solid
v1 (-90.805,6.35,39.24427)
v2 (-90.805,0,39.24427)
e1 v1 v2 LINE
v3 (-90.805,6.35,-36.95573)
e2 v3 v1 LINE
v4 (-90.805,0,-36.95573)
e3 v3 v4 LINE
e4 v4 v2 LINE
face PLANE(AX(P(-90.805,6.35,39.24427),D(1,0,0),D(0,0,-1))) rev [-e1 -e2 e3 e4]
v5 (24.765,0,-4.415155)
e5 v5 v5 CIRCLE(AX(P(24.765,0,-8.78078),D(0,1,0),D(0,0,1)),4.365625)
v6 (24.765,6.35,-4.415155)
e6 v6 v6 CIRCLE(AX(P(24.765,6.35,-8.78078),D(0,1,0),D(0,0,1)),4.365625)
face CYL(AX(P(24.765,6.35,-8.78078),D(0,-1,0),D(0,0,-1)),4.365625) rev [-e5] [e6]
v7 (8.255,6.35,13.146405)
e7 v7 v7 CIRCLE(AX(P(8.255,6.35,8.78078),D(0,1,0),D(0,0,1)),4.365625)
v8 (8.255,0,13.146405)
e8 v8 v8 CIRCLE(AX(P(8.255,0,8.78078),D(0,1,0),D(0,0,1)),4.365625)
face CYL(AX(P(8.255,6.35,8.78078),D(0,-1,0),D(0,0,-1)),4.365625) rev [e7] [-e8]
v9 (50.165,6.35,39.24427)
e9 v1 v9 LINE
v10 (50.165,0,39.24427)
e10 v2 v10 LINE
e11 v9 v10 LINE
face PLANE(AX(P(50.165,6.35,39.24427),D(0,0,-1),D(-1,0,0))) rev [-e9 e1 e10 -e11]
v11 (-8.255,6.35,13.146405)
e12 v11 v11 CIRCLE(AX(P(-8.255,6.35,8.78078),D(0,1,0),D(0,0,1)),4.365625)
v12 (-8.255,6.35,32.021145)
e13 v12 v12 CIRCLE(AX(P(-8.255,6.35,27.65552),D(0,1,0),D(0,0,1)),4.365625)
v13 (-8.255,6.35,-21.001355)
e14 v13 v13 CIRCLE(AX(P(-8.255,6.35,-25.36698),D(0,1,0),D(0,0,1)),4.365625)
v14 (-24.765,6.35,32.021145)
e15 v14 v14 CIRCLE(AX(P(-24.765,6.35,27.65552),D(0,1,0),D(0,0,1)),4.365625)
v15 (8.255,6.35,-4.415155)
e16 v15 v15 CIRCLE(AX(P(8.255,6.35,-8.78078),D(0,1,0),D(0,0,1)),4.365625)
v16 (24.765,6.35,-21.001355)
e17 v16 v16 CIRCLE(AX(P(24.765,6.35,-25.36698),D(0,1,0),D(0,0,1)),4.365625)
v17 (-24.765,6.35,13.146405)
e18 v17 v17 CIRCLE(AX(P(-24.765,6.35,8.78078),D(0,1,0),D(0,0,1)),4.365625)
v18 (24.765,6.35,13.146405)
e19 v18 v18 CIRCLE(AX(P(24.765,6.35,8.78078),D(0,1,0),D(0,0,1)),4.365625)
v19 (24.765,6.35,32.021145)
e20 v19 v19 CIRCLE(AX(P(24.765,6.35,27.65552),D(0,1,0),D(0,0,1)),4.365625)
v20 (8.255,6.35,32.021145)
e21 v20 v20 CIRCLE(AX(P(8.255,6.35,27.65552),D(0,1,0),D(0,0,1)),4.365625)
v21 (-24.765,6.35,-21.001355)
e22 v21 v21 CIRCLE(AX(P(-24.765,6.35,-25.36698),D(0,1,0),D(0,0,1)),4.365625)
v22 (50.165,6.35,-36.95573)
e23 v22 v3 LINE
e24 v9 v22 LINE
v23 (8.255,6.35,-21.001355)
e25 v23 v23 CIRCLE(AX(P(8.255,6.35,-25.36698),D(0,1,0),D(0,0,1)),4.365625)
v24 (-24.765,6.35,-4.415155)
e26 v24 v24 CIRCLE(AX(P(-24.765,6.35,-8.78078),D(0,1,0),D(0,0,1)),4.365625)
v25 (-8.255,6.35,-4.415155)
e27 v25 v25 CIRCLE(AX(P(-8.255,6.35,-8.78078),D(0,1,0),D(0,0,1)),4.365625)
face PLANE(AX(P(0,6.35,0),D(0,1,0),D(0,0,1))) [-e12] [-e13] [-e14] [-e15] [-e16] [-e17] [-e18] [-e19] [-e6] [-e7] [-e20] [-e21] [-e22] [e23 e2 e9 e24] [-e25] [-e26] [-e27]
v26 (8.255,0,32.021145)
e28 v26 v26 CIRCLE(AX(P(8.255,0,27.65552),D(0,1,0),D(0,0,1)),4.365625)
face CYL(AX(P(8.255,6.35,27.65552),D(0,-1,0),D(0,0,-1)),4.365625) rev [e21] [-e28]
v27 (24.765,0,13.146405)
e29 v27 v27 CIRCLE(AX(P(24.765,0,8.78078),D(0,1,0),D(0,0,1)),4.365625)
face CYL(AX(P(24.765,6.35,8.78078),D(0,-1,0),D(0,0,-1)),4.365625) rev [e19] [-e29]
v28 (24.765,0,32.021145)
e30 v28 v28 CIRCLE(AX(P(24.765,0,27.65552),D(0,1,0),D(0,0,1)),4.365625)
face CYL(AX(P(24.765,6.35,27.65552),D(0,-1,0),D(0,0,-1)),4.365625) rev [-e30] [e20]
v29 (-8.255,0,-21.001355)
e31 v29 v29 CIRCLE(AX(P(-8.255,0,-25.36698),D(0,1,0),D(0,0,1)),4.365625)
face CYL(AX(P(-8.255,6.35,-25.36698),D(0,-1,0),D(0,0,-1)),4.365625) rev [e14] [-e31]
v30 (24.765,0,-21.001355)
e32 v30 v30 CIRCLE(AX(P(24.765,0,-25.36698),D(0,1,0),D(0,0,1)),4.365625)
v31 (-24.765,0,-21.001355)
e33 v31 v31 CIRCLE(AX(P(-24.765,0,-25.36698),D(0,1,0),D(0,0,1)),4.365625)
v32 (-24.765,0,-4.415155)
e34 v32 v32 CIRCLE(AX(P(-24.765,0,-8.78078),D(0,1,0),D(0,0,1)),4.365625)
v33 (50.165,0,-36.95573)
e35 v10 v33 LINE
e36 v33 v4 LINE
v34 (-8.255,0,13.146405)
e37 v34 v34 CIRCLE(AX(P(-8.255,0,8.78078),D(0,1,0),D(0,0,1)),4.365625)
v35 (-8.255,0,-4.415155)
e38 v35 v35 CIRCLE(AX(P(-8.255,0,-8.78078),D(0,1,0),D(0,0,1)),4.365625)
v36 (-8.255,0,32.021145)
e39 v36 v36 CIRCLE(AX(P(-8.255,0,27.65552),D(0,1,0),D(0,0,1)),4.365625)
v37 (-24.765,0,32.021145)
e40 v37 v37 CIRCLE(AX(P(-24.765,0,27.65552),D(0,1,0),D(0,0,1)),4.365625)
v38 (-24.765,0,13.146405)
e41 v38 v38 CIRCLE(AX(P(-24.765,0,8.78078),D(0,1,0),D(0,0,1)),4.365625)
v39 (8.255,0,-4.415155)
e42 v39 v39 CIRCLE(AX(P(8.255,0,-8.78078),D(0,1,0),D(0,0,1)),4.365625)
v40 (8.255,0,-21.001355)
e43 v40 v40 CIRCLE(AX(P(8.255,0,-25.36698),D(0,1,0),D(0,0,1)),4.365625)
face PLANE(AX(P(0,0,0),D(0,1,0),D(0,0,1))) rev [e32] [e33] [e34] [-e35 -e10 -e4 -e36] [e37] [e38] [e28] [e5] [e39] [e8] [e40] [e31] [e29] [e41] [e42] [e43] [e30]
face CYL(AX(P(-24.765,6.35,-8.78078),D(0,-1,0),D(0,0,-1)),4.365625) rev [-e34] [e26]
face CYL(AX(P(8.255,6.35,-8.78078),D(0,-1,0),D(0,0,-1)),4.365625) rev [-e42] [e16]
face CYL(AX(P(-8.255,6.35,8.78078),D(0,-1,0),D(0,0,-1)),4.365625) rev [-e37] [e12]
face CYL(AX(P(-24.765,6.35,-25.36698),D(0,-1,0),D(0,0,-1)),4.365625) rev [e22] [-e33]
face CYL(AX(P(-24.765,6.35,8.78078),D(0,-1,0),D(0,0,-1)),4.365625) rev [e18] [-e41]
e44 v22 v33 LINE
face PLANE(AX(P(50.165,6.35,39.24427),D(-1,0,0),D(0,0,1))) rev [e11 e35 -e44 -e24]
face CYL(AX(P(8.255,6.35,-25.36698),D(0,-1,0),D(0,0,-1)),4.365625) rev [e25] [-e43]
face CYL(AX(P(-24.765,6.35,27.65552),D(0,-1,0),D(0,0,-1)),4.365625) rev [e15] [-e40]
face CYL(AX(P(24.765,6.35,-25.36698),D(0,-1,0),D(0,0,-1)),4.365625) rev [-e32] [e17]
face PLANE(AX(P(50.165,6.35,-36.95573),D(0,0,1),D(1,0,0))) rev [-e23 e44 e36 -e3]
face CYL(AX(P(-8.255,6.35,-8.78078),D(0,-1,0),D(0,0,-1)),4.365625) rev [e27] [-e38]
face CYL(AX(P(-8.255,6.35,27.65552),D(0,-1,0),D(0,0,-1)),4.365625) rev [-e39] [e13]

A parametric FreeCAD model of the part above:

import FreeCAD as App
import Part
import Sketcher

V = App.Vector
Q = App.Units.Quantity


def add_polygon(sketch, points):
    """Adds a closed chain of lines whose ends are joined by coincident constraints."""
    first, n = sketch.GeometryCount, len(points)
    for a, b in zip(points, points[1:] + points[:1]):
        sketch.addGeometry(Part.LineSegment(App.Vector(*a, 0), App.Vector(*b, 0)), False)
    for i in range(n):
        sketch.addConstraint(Sketcher.Constraint("Coincident", first + i, 2, first + (i + 1) % n, 1))

doc = App.newDocument("Part")
body = doc.addObject("PartDesign::Body", "Body")

# Sketch on XZ plane
sketch1 = body.newObject("Sketcher::SketchObject", "Sketch")
sketch1.AttachmentSupport = (doc.getObject("XZ_Plane"), [""])
sketch1.MapMode = "FlatFace"
add_polygon(sketch1, [(-90.8, -37), (-90.8, 39.2), (50.2, 39.2), (50.2, -37)])  # lines 0-3
sketch1.addGeometry(Part.Circle(V(-24.8, 27.7, 0), V(0, 0, 1), 4.4), False)  # 4
sketch1.addGeometry(Part.Circle(V(-8.3, 27.7, 0), V(0, 0, 1), 4.4), False)  # 5
sketch1.addGeometry(Part.Circle(V(-24.8, 8.8, 0), V(0, 0, 1), 4.4), False)  # 6
sketch1.addGeometry(Part.Circle(V(-8.3, 8.8, 0), V(0, 0, 1), 4.4), False)  # 7
sketch1.addGeometry(Part.Circle(V(8.3, 27.7, 0), V(0, 0, 1), 4.4), False)  # 8
sketch1.addGeometry(Part.Circle(V(24.8, 27.7, 0), V(0, 0, 1), 4.4), False)  # 9
sketch1.addGeometry(Part.Circle(V(8.3, 8.8, 0), V(0, 0, 1), 4.4), False)  # 10
sketch1.addGeometry(Part.Circle(V(24.8, 8.8, 0), V(0, 0, 1), 4.4), False)  # 11
sketch1.addGeometry(Part.Circle(V(-24.8, -8.8, 0), V(0, 0, 1), 4.4), False)  # 12
sketch1.addGeometry(Part.Circle(V(-8.3, -8.8, 0), V(0, 0, 1), 4.4), False)  # 13
sketch1.addGeometry(Part.Circle(V(-24.8, -25.4, 0), V(0, 0, 1), 4.4), False)  # 14
sketch1.addGeometry(Part.Circle(V(-8.3, -25.4, 0), V(0, 0, 1), 4.4), False)  # 15
sketch1.addGeometry(Part.Circle(V(8.3, -8.8, 0), V(0, 0, 1), 4.4), False)  # 16
sketch1.addGeometry(Part.Circle(V(24.8, -8.8, 0), V(0, 0, 1), 4.4), False)  # 17
sketch1.addGeometry(Part.Circle(V(8.3, -25.4, 0), V(0, 0, 1), 4.4), False)  # 18
sketch1.addGeometry(Part.Circle(V(24.8, -25.4, 0), V(0, 0, 1), 4.4), False)  # 19
sketch1.addConstraint([
    Sketcher.Constraint("Vertical", 0),
    Sketcher.Constraint("Horizontal", 1),
    Sketcher.Constraint("Vertical", 2),
    Sketcher.Constraint("Horizontal", 3),
    Sketcher.Constraint("Equal", 4, 5),
    Sketcher.Constraint("Equal", 5, 6),
    Sketcher.Constraint("Equal", 6, 7),
    Sketcher.Constraint("Equal", 7, 8),
    Sketcher.Constraint("Equal", 8, 9),
    Sketcher.Constraint("Equal", 9, 10),
    Sketcher.Constraint("Equal", 10, 11),
    Sketcher.Constraint("Equal", 11, 12),
    Sketcher.Constraint("Equal", 12, 13),
    Sketcher.Constraint("Equal", 13, 14),
    Sketcher.Constraint("Equal", 14, 15),
    Sketcher.Constraint("Equal", 15, 16),
    Sketcher.Constraint("Equal", 16, 17),
    Sketcher.Constraint("Equal", 17, 18),
    Sketcher.Constraint("Equal", 18, 19),
    Sketcher.Constraint("Symmetric", 11, 3, 12, 3, -1, 1),
    Sketcher.Constraint("Symmetric", 10, 3, 13, 3, -1, 1),
    Sketcher.Constraint("Symmetric", 7, 3, 16, 3, -1, 1),
    Sketcher.Constraint("Symmetric", 6, 3, 17, 3, -1, 1),
    Sketcher.Constraint("Symmetric", 5, 3, 8, 3, -2),
    Sketcher.Constraint("Symmetric", 4, 3, 9, 3, -2),
    Sketcher.Constraint("Symmetric", 7, 3, 10, 3, -2),
    Sketcher.Constraint("Symmetric", 6, 3, 11, 3, -2),
    Sketcher.Constraint("Symmetric", 15, 3, 18, 3, -2),
    Sketcher.Constraint("Symmetric", 14, 3, 19, 3, -2),
    Sketcher.Constraint("Horizontal", 4, 3, 5, 3),
    Sketcher.Constraint("Horizontal", 6, 3, 7, 3),
    Sketcher.Constraint("Horizontal", 14, 3, 15, 3),
    Sketcher.Constraint("Vertical", 4, 3, 6, 3),
    Sketcher.Constraint("Vertical", 5, 3, 7, 3),
    Sketcher.Constraint("Vertical", 12, 3, 14, 3),
    Sketcher.Constraint("Vertical", 13, 3, 15, 3),
    Sketcher.Constraint("DistanceY", 0, 1, 0, 2, Q("3 in")),
    Sketcher.Constraint("Diameter", 4, Q("0.34375 in")),
    Sketcher.Constraint("DistanceX", 9, 3, 1, 2, Q("1 in")),
    Sketcher.Constraint("DistanceX", 1, 1, 1, 2, Q("5.55 in")),
    Sketcher.Constraint("DistanceX", 4, 3, 8, 3, Q("1.3 in")),
    Sketcher.Constraint("DistanceX", 0, 2, 4, 3, Q("2.6 in")),
    Sketcher.Constraint("DistanceY", 14, 3, 12, 3, Q("0.653 in")),
    Sketcher.Constraint("DistanceY", -1, 1, 4, 3, Q("1.0888 in")),
    Sketcher.Constraint("DistanceY", -1, 1, 6, 3, Q("0.3457 in")),
    Sketcher.Constraint("DistanceY", -1, 1, 0, 2, Q("39.24427 mm")),
])
pad1 = body.newObject("PartDesign::Pad", "Pad")
pad1.Profile = sketch1
pad1.Length = Q("0.25 in")
pad1.Reversed = True

doc.recompute()
